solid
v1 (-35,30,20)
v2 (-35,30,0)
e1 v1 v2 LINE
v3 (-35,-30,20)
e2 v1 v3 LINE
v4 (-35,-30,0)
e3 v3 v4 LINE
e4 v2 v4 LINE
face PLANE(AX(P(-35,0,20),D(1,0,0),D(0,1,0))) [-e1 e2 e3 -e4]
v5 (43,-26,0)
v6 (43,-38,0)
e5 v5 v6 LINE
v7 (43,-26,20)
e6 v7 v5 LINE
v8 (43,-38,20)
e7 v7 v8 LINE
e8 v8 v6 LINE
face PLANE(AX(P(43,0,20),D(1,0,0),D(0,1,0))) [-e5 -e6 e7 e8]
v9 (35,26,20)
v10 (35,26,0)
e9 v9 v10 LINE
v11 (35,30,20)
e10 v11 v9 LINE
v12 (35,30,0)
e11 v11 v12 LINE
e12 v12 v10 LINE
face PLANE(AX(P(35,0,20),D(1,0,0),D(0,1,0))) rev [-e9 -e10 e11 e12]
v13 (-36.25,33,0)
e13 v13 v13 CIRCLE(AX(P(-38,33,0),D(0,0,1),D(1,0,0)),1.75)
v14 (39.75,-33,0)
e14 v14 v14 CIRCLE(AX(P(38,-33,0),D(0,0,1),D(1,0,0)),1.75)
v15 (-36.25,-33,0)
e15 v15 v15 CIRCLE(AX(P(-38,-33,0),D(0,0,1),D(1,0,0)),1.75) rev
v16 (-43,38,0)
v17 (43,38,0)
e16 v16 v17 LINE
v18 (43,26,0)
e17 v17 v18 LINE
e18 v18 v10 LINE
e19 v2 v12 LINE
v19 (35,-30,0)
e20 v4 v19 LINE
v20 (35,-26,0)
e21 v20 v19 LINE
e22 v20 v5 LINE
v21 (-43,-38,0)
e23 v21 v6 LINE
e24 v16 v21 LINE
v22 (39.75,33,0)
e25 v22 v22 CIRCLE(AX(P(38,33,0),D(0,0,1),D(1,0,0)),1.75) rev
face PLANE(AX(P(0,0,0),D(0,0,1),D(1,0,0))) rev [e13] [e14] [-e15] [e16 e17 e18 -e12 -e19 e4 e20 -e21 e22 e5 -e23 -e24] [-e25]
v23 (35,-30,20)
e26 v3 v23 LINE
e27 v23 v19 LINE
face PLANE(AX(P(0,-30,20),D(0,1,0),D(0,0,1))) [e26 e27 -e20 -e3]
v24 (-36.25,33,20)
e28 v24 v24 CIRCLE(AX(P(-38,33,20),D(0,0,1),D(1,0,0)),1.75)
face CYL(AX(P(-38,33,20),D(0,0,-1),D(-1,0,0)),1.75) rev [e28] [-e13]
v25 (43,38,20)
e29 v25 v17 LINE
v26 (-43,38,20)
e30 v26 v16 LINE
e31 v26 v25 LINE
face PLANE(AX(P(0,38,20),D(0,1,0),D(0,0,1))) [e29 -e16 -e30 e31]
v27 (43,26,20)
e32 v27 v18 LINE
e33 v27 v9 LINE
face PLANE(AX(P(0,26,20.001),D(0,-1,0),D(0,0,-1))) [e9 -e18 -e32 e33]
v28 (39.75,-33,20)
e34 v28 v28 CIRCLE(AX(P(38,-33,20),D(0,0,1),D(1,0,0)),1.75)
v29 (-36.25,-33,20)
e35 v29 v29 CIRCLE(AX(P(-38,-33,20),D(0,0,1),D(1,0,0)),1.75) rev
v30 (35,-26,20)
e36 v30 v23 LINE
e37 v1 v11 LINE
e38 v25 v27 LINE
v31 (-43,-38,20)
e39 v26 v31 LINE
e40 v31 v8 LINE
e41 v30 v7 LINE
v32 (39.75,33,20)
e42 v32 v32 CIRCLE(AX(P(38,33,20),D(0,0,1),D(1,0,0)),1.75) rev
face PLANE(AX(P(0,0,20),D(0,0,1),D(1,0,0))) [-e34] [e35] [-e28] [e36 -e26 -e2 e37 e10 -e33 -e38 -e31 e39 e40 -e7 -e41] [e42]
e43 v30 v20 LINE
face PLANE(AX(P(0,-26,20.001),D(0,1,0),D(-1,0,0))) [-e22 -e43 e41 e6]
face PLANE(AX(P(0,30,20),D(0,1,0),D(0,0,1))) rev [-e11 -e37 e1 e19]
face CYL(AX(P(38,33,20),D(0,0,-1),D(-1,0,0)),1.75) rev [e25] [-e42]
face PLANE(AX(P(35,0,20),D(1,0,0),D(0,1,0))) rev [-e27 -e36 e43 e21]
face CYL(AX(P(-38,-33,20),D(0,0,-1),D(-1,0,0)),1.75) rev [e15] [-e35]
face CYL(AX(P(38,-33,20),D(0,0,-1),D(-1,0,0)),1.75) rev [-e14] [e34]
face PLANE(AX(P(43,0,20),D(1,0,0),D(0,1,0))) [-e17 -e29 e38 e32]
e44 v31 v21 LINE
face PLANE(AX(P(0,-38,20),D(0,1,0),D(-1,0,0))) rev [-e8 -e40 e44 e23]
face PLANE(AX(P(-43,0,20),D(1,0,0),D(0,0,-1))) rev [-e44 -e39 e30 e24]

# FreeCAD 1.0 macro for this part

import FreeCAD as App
import Part
import Sketcher

V = App.Vector
Q = App.Units.Quantity

doc = App.newDocument("Part")
body = doc.addObject("PartDesign::Body", "Body")

# Sketch on XY plane
sketch1 = doc.addObject("Sketcher::SketchObject", "Sketch")
body.addObject(sketch1)
sketch1.AttachmentSupport = (doc.XY_Plane, [""])
sketch1.MapMode = "FlatFace"
sketch1.addGeometry([
    Part.LineSegment(V(-43, 38, 0), V(-43, -38, 0)),  # 0
    Part.LineSegment(V(-43, -38, 0), V(43, -38, 0)),  # 1
    Part.LineSegment(V(43, -38, 0), V(43, 38, 0)),  # 2
    Part.LineSegment(V(43, 38, 0), V(-43, 38, 0)),  # 3
    Part.Circle(V(-38, -33, 0), V(0, 0, 1), 1.8),  # 4
    Part.Circle(V(38, -33, 0), V(0, 0, 1), 1.8),  # 5
    Part.Circle(V(-38, 33, 0), V(0, 0, 1), 1.8),  # 6
    Part.LineSegment(V(35, -30, 0), V(-35, -30, 0)),  # 7
    Part.LineSegment(V(-35, -30, 0), V(-35, 30, 0)),  # 8
    Part.LineSegment(V(-35, 30, 0), V(35, 30, 0)),  # 9
    Part.LineSegment(V(35, 30, 0), V(35, -30, 0)),  # 10
    Part.Circle(V(38, 33, 0), V(0, 0, 1), 1.8),  # 11
], False)
sketch1.addConstraint([
    Sketcher.Constraint("Coincident", 0, 2, 1, 1),
    Sketcher.Constraint("Coincident", 1, 2, 2, 1),
    Sketcher.Constraint("Coincident", 2, 2, 3, 1),
    Sketcher.Constraint("Coincident", 3, 2, 0, 1),
    Sketcher.Constraint("Coincident", 7, 2, 8, 1),
    Sketcher.Constraint("Coincident", 8, 2, 9, 1),
    Sketcher.Constraint("Coincident", 9, 2, 10, 1),
    Sketcher.Constraint("Coincident", 10, 2, 7, 1),
    Sketcher.Constraint("Vertical", 0),
    Sketcher.Constraint("Horizontal", 1),
    Sketcher.Constraint("Vertical", 2),
    Sketcher.Constraint("Horizontal", 3),
    Sketcher.Constraint("Horizontal", 7),
    Sketcher.Constraint("Vertical", 8),
    Sketcher.Constraint("Horizontal", 9),
    Sketcher.Constraint("Vertical", 10),
    Sketcher.Constraint("Equal", 4, 5),
    Sketcher.Constraint("Equal", 5, 6),
    Sketcher.Constraint("Equal", 6, 11),
    Sketcher.Constraint("Symmetric", 5, 3, 6, 3, -1, 1),
    Sketcher.Constraint("Symmetric", 4, 3, 11, 3, -1, 1),
    Sketcher.Constraint("Symmetric", 0, 2, 2, 2, -1, 1),
    Sketcher.Constraint("Symmetric", 7, 2, 9, 2, -1, 1),
    Sketcher.Constraint("Symmetric", 4, 3, 5, 3, -2),
    Sketcher.Constraint("Diameter", 4, Q("3.5 mm")),
    Sketcher.Constraint("DistanceX", 1, 1, 1, 2, Q("86 mm")),
    Sketcher.Constraint("DistanceX", 7, 2, 7, 1, Q("70 mm")),
    Sketcher.Constraint("DistanceY", 0, 2, 0, 1, Q("76 mm")),
    Sketcher.Constraint("DistanceY", 8, 1, 8, 2, Q("60 mm")),
    Sketcher.Constraint("DistanceX", 4, 3, -1, 1, Q("38 mm")),
    Sketcher.Constraint("DistanceY", 4, 3, -1, 1, Q("33 mm")),
])
pad1 = doc.addObject("PartDesign::Pad", "Pad")
body.addObject(pad1)
pad1.Profile = sketch1
pad1.Length = 20

# Sketch on XY plane
sketch2 = doc.addObject("Sketcher::SketchObject", "Sketch001")
body.addObject(sketch2)
sketch2.AttachmentSupport = (doc.XY_Plane, [""])
sketch2.MapMode = "FlatFace"
sketch2.addGeometry([
    Part.LineSegment(V(43, 26, 0), V(43, -26, 0)),
    Part.LineSegment(V(43, -26, 0), V(35, -26, 0)),
    Part.LineSegment(V(35, -26, 0), V(35, 26, 0)),
    Part.LineSegment(V(35, 26, 0), V(43, 26, 0)),
], False)
sketch2.addConstraint([
    Sketcher.Constraint("Coincident", 0, 2, 1, 1),
    Sketcher.Constraint("Coincident", 1, 2, 2, 1),
    Sketcher.Constraint("Coincident", 2, 2, 3, 1),
    Sketcher.Constraint("Coincident", 3, 2, 0, 1),
    Sketcher.Constraint("Vertical", 0),
    Sketcher.Constraint("Horizontal", 1),
    Sketcher.Constraint("Vertical", 2),
    Sketcher.Constraint("Horizontal", 3),
    Sketcher.Constraint("DistanceX", 1, 2, 1, 1, Q("8 mm")),
    Sketcher.Constraint("DistanceY", 0, 2, 0, 1, Q("52 mm")),
    Sketcher.Constraint("DistanceX", -1, 1, 0, 2, Q("43 mm")),
    Sketcher.Constraint("DistanceY", 0, 2, -1, 1, Q("26 mm")),
])
pocket1 = doc.addObject("PartDesign::Pocket", "Pocket")
body.addObject(pocket1)
pocket1.Profile = sketch2
pocket1.Type = "UpToFirst"
pocket1.Reversed = True

doc.recompute()
